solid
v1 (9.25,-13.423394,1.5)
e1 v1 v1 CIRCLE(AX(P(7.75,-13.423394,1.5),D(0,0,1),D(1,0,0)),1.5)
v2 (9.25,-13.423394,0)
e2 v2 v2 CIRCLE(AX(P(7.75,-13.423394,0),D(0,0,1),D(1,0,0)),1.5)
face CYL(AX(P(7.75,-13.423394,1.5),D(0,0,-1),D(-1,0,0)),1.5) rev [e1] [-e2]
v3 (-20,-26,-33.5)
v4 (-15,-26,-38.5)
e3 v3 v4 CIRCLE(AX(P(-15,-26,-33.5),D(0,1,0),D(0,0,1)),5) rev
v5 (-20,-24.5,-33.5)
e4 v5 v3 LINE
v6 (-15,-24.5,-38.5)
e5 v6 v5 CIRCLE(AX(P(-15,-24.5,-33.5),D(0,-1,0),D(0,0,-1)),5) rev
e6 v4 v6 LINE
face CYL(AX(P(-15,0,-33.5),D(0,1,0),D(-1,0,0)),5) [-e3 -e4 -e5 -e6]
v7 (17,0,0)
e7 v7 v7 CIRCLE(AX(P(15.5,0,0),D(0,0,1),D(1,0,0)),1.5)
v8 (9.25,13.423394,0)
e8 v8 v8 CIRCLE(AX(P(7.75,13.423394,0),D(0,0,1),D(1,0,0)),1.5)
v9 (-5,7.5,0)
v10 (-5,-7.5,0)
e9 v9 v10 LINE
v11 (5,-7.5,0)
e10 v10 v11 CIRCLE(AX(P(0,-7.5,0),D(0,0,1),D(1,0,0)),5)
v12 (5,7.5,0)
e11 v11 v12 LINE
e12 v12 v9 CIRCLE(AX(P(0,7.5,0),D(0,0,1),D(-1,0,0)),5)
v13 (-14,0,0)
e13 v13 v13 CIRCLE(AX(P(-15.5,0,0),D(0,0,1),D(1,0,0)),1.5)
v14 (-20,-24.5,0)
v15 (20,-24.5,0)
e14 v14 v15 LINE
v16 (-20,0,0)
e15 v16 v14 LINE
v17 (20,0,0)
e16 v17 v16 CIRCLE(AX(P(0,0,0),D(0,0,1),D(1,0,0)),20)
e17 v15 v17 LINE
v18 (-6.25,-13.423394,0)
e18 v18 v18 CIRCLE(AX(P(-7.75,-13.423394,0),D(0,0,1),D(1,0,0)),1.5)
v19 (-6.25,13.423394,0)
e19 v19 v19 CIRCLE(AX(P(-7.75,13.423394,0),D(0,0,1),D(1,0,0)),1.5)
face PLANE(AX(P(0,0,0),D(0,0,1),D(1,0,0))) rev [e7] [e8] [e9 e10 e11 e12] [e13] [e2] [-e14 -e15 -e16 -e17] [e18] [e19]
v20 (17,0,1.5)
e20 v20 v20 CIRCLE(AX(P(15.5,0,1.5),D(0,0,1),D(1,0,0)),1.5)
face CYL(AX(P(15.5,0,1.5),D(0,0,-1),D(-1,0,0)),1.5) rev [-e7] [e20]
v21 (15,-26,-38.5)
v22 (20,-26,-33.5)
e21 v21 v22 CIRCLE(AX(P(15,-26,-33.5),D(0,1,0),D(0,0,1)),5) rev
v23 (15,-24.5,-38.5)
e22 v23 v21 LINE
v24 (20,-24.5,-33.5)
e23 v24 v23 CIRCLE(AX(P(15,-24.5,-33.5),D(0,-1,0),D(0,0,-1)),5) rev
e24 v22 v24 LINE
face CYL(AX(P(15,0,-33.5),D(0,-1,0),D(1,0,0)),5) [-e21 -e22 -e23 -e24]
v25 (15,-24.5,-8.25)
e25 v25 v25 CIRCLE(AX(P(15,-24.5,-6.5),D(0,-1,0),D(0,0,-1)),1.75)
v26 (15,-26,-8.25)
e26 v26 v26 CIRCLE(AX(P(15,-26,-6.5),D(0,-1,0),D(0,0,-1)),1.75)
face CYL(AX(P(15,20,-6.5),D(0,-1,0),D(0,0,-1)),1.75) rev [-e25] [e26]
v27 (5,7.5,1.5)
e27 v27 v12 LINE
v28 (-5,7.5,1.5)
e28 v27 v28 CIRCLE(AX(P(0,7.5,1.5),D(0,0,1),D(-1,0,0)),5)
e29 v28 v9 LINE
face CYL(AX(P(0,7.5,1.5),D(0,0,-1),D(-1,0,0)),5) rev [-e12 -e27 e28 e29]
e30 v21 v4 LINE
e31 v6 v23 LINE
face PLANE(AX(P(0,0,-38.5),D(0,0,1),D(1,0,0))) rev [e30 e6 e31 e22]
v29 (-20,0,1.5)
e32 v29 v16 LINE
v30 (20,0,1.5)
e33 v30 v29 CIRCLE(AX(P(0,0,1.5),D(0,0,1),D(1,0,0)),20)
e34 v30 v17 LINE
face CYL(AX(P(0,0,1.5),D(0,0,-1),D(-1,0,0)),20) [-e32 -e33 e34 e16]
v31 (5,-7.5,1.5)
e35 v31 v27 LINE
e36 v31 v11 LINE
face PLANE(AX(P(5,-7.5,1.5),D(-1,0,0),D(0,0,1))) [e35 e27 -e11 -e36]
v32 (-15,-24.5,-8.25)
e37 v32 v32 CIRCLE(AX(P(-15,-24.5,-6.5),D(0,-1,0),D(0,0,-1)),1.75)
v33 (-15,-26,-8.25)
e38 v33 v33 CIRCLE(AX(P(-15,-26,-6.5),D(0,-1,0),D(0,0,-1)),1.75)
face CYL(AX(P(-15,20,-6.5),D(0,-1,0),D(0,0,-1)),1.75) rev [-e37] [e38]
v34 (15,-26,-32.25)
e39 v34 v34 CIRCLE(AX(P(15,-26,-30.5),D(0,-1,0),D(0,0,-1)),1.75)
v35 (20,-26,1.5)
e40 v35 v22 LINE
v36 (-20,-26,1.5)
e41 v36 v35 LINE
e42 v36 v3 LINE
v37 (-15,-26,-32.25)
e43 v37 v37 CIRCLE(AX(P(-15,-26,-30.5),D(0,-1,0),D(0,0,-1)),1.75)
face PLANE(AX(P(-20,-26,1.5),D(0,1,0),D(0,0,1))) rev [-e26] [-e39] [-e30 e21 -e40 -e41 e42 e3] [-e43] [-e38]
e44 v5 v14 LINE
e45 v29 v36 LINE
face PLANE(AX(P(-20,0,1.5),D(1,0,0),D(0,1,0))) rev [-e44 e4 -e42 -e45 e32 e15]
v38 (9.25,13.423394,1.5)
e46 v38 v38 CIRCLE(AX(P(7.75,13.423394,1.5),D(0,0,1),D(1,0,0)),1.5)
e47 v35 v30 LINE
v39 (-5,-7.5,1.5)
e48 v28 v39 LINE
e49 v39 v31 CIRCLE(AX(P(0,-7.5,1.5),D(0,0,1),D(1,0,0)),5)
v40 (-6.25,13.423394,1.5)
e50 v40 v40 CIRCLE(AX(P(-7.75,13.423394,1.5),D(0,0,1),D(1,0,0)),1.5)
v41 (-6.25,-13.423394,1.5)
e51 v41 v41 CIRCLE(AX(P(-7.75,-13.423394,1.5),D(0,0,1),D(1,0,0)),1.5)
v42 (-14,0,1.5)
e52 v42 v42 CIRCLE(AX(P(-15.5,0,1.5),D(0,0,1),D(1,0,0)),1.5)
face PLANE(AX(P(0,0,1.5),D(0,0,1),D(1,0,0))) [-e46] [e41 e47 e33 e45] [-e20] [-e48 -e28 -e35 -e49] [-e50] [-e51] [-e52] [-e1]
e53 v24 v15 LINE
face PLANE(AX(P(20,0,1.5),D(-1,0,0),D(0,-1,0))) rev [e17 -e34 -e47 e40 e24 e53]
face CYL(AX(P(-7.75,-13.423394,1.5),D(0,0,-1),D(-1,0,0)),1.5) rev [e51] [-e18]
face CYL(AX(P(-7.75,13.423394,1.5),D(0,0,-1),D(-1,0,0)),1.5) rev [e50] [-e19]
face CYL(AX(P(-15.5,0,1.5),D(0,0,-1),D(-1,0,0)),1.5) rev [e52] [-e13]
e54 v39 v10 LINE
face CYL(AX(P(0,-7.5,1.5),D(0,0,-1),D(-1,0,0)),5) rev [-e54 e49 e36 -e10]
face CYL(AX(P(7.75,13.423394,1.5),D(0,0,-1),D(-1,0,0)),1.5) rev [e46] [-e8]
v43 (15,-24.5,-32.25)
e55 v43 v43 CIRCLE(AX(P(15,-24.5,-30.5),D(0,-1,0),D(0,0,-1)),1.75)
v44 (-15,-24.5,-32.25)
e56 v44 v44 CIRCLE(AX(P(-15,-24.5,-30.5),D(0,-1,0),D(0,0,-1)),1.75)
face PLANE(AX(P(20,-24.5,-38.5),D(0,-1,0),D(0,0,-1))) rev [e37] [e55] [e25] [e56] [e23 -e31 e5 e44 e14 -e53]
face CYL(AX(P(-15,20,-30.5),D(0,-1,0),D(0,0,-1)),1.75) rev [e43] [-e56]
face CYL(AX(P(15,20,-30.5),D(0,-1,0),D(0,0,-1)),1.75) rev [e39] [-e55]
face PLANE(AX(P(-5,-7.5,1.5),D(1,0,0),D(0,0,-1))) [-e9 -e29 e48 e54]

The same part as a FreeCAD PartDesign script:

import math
import FreeCAD as App
import Part
import Sketcher
from FreeCAD import Vector


def edges_at(feature, points):
    """Names of the edges that pass closest to the given points."""
    edges = feature.Shape.Edges
    near = lambda p: min(range(len(edges)), key=lambda i: edges[i].distToShape(Part.Vertex(*p))[0])
    return sorted({f"Edge{near(p) + 1}" for p in points})


def add_polygon(sketch, points):
    """Adds a closed chain of lines whose ends are joined by coincident constraints."""
    first, n = sketch.GeometryCount, len(points)
    for a, b in zip(points, points[1:] + points[:1]):
        sketch.addGeometry(Part.LineSegment(App.Vector(*a, 0), App.Vector(*b, 0)), False)
    for i in range(n):
        sketch.addConstraint(Sketcher.Constraint("Coincident", first + i, 2, first + (i + 1) % n, 1))

doc = App.newDocument("Part")
body = doc.addObject("PartDesign::Body", "Body")

# Sketch on XY plane
sketch1 = body.newObject("Sketcher::SketchObject", "Sketch")
sketch1.AttachmentSupport = (doc.getObject("XY_Plane"), [""])
sketch1.MapMode = "FlatFace"
sketch1.addGeometry(Part.LineSegment(Vector(-20, 0, 0), Vector(-20, -26, 0)), False)
sketch1.addGeometry(Part.LineSegment(Vector(-20, -26, 0), Vector(20, -26, 0)), False)
sketch1.addGeometry(Part.LineSegment(Vector(20, -26, 0), Vector(20, 0, 0)), False)
sketch1.addGeometry(Part.ArcOfCircle(Part.Circle(Vector(0, 0, 0), Vector(0, 0, 1), 20), math.radians(0), math.radians(180)), False)
sketch1.addGeometry(Part.Circle(Vector(-7.8, -13.4, 0), Vector(0, 0, 1), 1.5), False)
sketch1.addGeometry(Part.Circle(Vector(7.8, -13.4, 0), Vector(0, 0, 1), 1.5), False)
sketch1.addGeometry(Part.Circle(Vector(-15.5, 0, 0), Vector(0, 0, 1), 1.5), False)
sketch1.addGeometry(Part.Circle(Vector(-7.8, 13.4, 0), Vector(0, 0, 1), 1.5), False)
sketch1.addGeometry(Part.LineSegment(Vector(5, 7.5, 0), Vector(5, -7.5, 0)), False)
sketch1.addGeometry(Part.ArcOfCircle(Part.Circle(Vector(0, -7.5, 0), Vector(0, 0, 1), 5), math.radians(180), math.radians(360)), False)
sketch1.addGeometry(Part.LineSegment(Vector(-5, -7.5, 0), Vector(-5, 7.5, 0)), False)
sketch1.addGeometry(Part.ArcOfCircle(Part.Circle(Vector(0, 7.5, 0), Vector(0, 0, 1), 5), math.radians(0), math.radians(180)), False)
sketch1.addGeometry(Part.Circle(Vector(15.5, 0, 0), Vector(0, 0, 1), 1.5), False)
sketch1.addGeometry(Part.Circle(Vector(7.8, 13.4, 0), Vector(0, 0, 1), 1.5), False)
sketch1.addConstraint(Sketcher.Constraint("Coincident", 0, 2, 1, 1))
sketch1.addConstraint(Sketcher.Constraint("Coincident", 1, 2, 2, 1))
sketch1.addConstraint(Sketcher.Constraint("Tangent", 2, 2, 3, 1))
sketch1.addConstraint(Sketcher.Constraint("Tangent", 3, 2, 0, 1))
sketch1.addConstraint(Sketcher.Constraint("Tangent", 8, 2, 9, 2))
sketch1.addConstraint(Sketcher.Constraint("Tangent", 9, 1, 10, 1))
sketch1.addConstraint(Sketcher.Constraint("Tangent", 10, 2, 11, 2))
sketch1.addConstraint(Sketcher.Constraint("Tangent", 11, 1, 8, 1))
sketch1.addConstraint(Sketcher.Constraint("Vertical", 0))
sketch1.addConstraint(Sketcher.Constraint("Horizontal", 1))
sketch1.addConstraint(Sketcher.Constraint("Vertical", 2))
sketch1.addConstraint(Sketcher.Constraint("Vertical", 8))
sketch1.addConstraint(Sketcher.Constraint("Vertical", 10))
sketch1.addConstraint(Sketcher.Constraint("Coincident", 3, 3, -1, 1))
sketch1.addConstraint(Sketcher.Constraint("Equal", 4, 5))
sketch1.addConstraint(Sketcher.Constraint("Equal", 5, 6))
sketch1.addConstraint(Sketcher.Constraint("Equal", 6, 7))
sketch1.addConstraint(Sketcher.Constraint("Equal", 7, 12))
sketch1.addConstraint(Sketcher.Constraint("Equal", 12, 13))
sketch1.addConstraint(Sketcher.Constraint("Symmetric", 5, 3, 7, 3, -1, 1))
sketch1.addConstraint(Sketcher.Constraint("Symmetric", 9, 3, 11, 3, -1, 1))
sketch1.addConstraint(Sketcher.Constraint("Symmetric", 6, 3, 12, 3, -1, 1))
sketch1.addConstraint(Sketcher.Constraint("Symmetric", 4, 3, 13, 3, -1, 1))
sketch1.addConstraint(Sketcher.Constraint("Symmetric", 4, 3, 5, 3, -2))
sketch1.addConstraint(Sketcher.Constraint("PointOnObject", 6, 3, -1))
sketch1.addConstraint(Sketcher.Constraint("Diameter", 4, 3.0))
sketch1.addConstraint(Sketcher.Constraint("Radius", 3, 20.0))
sketch1.addConstraint(Sketcher.Constraint("Radius", 9, 5.0))
sketch1.addConstraint(Sketcher.Constraint("DistanceY", 0, 2, 0, 1, 26.0))
sketch1.addConstraint(Sketcher.Constraint("DistanceY", 8, 2, 8, 1, 15.0))
sketch1.addConstraint(Sketcher.Constraint("DistanceX", 6, 3, -1, 1, 15.5))
sketch1.addConstraint(Sketcher.Constraint("DistanceX", 4, 3, 5, 3, 15.5))
sketch1.addConstraint(Sketcher.Constraint("DistanceY", 4, 3, -1, 1, 13.423394))
pad1 = body.newObject("PartDesign::Pad", "Pad")
pad1.Profile = sketch1
pad1.Length = 1.5

# Sketch on XY plane
sketch2 = body.newObject("Sketcher::SketchObject", "Sketch001")
sketch2.AttachmentSupport = (doc.getObject("XY_Plane"), [""])
sketch2.MapMode = "FlatFace"
add_polygon(sketch2, [(20, -24.5), (20, -26), (-20, -26), (-20, -24.5)])  # lines 0-3
sketch2.addConstraint(Sketcher.Constraint("Vertical", 0))
sketch2.addConstraint(Sketcher.Constraint("Horizontal", 1))
sketch2.addConstraint(Sketcher.Constraint("Vertical", 2))
sketch2.addConstraint(Sketcher.Constraint("Horizontal", 3))
sketch2.addConstraint(Sketcher.Constraint("DistanceX", 1, 2, 1, 1, 40.0))
sketch2.addConstraint(Sketcher.Constraint("DistanceY", 0, 2, 0, 1, 1.5))
sketch2.addConstraint(Sketcher.Constraint("DistanceX", -1, 1, 0, 2, 20.0))
sketch2.addConstraint(Sketcher.Constraint("DistanceY", 0, 2, -1, 1, 26.0))
pad2 = body.newObject("PartDesign::Pad", "Pad001")
pad2.Profile = sketch2
pad2.Length = 38.5
pad2.Reversed = True

# Sketch on XZ plane
sketch3 = body.newObject("Sketcher::SketchObject", "Sketch002")
sketch3.AttachmentSupport = (doc.getObject("XZ_Plane"), [""])
sketch3.MapMode = "FlatFace"
sketch3.AttachmentOffset = App.Placement(Vector(0, 0, 26), App.Rotation())
sketch3.addGeometry(Part.Circle(Vector(-15, -6.5, 0), Vector(0, 0, 1), 1.8), False)
sketch3.addGeometry(Part.Circle(Vector(15, -6.5, 0), Vector(0, 0, 1), 1.8), False)
sketch3.addGeometry(Part.Circle(Vector(-15, -30.5, 0), Vector(0, 0, 1), 1.8), False)
sketch3.addGeometry(Part.Circle(Vector(15, -30.5, 0), Vector(0, 0, 1), 1.8), False)
sketch3.addConstraint(Sketcher.Constraint("Equal", 0, 1))
sketch3.addConstraint(Sketcher.Constraint("Equal", 1, 2))
sketch3.addConstraint(Sketcher.Constraint("Equal", 2, 3))
sketch3.addConstraint(Sketcher.Constraint("Symmetric", 0, 3, 1, 3, -2))
sketch3.addConstraint(Sketcher.Constraint("Symmetric", 2, 3, 3, 3, -2))
sketch3.addConstraint(Sketcher.Constraint("Vertical", 0, 3, 2, 3))
sketch3.addConstraint(Sketcher.Constraint("Diameter", 0, 3.5))
sketch3.addConstraint(Sketcher.Constraint("DistanceX", 0, 3, -1, 1, 15.0))
sketch3.addConstraint(Sketcher.Constraint("DistanceY", 2, 3, 0, 3, 24.0))
sketch3.addConstraint(Sketcher.Constraint("DistanceY", 0, 3, -1, 1, 6.5))
pocket1 = body.newObject("PartDesign::Pocket", "Pocket")
pocket1.Profile = sketch3
pocket1.Type = "ThroughAll"
doc.recompute()

fillet = body.newObject("PartDesign::Fillet", "Fillet")
fillet.Base = (pocket1, edges_at(pocket1, [(20, -25.25, -38.5), (-20, -25.25, -38.5)]))
fillet.Radius = 5

doc.recompute()
